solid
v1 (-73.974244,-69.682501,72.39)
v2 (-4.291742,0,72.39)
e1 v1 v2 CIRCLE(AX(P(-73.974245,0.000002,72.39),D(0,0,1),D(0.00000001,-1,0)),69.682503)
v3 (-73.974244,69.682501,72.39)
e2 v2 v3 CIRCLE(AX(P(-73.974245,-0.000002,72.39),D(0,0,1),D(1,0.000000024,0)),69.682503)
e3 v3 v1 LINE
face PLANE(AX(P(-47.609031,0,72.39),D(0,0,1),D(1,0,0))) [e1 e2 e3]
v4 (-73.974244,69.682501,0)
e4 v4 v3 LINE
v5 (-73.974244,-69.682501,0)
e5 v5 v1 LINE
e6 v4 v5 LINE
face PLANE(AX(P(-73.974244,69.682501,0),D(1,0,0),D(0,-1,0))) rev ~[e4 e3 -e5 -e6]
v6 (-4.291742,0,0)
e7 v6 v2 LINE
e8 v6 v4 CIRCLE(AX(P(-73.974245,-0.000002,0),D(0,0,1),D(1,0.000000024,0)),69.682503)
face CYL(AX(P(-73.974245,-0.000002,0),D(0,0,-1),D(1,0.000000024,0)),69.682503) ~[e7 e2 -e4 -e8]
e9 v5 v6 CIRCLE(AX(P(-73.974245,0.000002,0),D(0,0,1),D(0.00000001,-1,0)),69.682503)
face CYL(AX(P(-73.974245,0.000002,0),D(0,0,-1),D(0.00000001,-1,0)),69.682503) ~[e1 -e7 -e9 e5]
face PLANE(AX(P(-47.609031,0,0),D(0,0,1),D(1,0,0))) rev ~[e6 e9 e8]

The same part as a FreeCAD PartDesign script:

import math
import FreeCAD as App
import Part
import Sketcher
Q = App.Units.Quantity

doc = App.newDocument("Part")
body = doc.addObject("PartDesign::Body", "Body")

# Sketch on XY plane
sketch1 = body.newObject("Sketcher::SketchObject", "Sketch")
sketch1.AttachmentSupport = (doc.getObject("XY_Plane"), [""])
sketch1.MapMode = "FlatFace"
sketch1.addGeometry([
    Part.ArcOfCircle(Part.Circle(App.Vector(-73.974245, -0.000002, 0), App.Vector(0, 0, 1), 69.682503), math.radians(0.000001), math.radians(89.999999)),
    Part.LineSegment(App.Vector(-73.974244, 69.682501, 0), App.Vector(-73.974244, -69.682501, 0)),
    Part.ArcOfCircle(Part.Circle(App.Vector(-73.974245, 0.000002, 0), App.Vector(0, 0, 1), 69.682503), math.radians(-89.999999), math.radians(-0.000001)),
], False)
sketch1.addConstraint([
    Sketcher.Constraint("Coincident", 0, 2, 1, 1),
    Sketcher.Constraint("Coincident", 1, 2, 2, 1),
    Sketcher.Constraint("Tangent", 2, 2, 0, 1),
    Sketcher.Constraint("Vertical", 1),
    Sketcher.Constraint("Equal", 0, 2),
    Sketcher.Constraint("PointOnObject", 0, 3, -1),
    Sketcher.Constraint("PointOnObject", 2, 2, -1),
    Sketcher.Constraint("Vertical", 2, 3, 0, 2),
    Sketcher.Constraint("DistanceY", 1, 2, 1, 1, Q("139.365002 mm")),
    Sketcher.Constraint("DistanceX", 0, 3, -1, 1, Q("73.974245 mm")),
])
pad1 = body.newObject("PartDesign::Pad", "Pad")
pad1.Profile = sketch1
pad1.Length = Q("2.85 in")

doc.recompute()
